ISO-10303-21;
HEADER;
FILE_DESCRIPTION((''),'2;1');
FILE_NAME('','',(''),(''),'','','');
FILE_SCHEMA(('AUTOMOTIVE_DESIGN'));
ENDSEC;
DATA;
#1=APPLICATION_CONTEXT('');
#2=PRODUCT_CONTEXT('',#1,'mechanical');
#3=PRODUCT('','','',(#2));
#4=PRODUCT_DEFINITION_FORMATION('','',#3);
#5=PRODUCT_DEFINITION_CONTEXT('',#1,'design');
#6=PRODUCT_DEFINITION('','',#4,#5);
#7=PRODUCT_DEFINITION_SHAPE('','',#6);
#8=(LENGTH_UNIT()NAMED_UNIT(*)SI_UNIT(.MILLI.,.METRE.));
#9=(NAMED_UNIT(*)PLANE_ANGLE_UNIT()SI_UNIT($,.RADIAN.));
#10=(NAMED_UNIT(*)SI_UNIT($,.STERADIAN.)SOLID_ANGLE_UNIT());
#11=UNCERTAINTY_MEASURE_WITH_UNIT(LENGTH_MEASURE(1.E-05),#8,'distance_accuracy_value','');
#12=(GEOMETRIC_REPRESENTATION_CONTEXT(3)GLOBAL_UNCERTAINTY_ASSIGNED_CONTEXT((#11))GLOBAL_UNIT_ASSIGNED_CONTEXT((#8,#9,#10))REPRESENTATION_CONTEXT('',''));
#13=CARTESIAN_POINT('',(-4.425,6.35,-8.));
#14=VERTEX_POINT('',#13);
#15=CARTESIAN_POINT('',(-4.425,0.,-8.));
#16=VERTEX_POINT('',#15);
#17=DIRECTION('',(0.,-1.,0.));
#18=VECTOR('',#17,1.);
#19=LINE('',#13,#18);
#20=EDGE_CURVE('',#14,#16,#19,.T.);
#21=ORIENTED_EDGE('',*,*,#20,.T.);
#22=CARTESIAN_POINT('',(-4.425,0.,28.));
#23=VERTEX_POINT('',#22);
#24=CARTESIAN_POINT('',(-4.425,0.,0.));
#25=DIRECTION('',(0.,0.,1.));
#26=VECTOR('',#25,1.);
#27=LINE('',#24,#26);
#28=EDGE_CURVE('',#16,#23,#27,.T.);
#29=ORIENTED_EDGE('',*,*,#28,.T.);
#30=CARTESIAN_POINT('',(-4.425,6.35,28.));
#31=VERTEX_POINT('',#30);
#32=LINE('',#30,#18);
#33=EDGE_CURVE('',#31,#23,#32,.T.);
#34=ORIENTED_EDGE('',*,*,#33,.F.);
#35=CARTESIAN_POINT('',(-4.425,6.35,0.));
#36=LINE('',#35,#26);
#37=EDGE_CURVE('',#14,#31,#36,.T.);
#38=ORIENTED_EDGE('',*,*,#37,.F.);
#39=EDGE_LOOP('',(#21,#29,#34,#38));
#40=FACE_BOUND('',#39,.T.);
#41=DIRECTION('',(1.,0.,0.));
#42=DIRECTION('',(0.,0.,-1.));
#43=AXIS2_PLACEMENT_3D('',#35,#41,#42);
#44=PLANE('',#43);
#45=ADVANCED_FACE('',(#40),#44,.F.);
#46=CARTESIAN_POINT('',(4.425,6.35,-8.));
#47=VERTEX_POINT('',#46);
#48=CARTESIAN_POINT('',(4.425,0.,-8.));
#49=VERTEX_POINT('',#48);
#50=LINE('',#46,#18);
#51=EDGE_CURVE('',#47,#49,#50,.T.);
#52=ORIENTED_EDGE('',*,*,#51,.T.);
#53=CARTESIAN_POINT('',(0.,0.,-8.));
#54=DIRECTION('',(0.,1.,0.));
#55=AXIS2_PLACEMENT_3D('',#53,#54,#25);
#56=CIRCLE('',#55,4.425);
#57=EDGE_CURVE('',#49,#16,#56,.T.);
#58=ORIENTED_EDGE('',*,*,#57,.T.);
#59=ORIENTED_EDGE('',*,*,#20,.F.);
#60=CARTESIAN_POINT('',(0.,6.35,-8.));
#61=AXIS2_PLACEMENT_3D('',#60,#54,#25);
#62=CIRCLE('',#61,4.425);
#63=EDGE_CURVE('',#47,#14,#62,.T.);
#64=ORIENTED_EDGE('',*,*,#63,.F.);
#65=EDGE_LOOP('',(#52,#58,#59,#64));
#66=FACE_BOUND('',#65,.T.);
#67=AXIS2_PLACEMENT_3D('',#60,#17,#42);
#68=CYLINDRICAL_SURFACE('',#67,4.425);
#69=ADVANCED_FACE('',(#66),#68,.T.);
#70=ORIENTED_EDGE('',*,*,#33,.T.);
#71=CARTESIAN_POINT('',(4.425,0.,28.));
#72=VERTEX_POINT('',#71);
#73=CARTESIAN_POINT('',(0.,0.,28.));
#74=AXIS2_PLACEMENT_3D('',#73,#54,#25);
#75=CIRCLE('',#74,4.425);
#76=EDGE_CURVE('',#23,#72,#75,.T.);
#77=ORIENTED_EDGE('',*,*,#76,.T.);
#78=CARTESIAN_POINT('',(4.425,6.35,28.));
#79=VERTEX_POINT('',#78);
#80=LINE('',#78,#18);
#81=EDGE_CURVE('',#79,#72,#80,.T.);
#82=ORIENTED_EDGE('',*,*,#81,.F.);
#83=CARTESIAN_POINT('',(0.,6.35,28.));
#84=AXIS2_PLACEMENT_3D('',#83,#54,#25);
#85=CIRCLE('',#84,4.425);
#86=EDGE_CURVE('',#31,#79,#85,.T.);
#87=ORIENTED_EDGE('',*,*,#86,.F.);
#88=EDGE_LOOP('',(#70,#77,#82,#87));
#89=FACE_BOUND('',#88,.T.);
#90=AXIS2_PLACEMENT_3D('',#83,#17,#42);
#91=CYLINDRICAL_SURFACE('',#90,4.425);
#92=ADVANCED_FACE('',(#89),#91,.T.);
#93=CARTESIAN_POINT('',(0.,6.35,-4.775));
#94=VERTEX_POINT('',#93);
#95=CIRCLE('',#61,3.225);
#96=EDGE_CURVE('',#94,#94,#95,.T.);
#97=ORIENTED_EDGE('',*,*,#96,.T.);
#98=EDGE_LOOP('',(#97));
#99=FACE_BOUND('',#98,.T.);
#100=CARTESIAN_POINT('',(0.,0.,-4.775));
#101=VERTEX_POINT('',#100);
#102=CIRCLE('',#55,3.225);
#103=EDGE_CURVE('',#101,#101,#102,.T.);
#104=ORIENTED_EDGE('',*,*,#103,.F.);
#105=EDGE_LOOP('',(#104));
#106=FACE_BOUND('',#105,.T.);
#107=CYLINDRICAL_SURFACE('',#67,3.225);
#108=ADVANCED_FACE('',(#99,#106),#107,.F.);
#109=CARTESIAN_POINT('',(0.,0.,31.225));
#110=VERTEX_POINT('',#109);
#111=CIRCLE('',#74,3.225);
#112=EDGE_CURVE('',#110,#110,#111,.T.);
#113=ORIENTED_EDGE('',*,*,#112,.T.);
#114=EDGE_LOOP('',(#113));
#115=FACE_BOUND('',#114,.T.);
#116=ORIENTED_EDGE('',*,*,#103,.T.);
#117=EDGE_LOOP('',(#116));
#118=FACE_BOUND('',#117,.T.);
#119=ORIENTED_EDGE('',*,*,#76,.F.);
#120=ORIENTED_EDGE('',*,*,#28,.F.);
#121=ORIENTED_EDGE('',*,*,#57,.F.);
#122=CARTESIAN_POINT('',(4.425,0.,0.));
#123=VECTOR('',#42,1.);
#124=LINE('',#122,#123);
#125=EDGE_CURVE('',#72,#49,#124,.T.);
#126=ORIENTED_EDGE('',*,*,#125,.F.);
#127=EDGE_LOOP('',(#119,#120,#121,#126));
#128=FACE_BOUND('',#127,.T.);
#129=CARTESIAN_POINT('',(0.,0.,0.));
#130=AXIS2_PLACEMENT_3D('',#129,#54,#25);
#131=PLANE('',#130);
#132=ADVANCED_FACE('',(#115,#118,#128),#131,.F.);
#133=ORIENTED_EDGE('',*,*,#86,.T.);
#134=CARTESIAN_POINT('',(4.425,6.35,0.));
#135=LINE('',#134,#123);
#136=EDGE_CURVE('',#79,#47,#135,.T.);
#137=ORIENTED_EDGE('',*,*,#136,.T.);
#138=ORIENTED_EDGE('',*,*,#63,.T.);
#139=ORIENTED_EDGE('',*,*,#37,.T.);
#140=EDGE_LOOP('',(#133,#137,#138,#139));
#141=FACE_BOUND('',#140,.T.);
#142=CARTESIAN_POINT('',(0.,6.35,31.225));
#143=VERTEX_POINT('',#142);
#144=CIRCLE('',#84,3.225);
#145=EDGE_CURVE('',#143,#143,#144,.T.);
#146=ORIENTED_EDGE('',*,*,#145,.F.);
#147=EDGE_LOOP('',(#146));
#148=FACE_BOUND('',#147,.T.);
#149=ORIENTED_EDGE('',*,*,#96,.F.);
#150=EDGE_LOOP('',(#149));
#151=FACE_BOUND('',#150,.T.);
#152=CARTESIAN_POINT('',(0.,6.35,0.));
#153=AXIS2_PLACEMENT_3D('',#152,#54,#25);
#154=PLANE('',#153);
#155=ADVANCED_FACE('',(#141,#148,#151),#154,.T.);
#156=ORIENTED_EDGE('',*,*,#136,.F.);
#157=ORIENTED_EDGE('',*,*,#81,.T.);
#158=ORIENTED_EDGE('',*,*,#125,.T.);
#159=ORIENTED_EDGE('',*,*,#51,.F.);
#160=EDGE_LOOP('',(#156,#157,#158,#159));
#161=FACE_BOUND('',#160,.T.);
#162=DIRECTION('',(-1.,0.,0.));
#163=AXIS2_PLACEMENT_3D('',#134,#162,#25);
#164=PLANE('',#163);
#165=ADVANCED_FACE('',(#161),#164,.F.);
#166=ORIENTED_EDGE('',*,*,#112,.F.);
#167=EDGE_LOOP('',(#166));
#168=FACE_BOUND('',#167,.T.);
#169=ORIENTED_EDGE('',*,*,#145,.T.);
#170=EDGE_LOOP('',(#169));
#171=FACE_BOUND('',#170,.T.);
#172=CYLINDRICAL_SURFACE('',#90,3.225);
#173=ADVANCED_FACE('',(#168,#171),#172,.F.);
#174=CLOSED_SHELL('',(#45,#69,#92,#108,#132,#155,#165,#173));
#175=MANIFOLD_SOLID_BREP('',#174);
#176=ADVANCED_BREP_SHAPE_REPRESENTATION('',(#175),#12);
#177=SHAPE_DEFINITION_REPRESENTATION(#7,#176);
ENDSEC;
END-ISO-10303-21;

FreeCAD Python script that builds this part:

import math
import FreeCAD as App
import Part
import Sketcher

V = App.Vector
Q = App.Units.Quantity

doc = App.newDocument("Part")
body = doc.addObject("PartDesign::Body", "Body")

sketch1 = body.newObject("Sketcher::SketchObject", "Sketch")
sketch1.AttachmentSupport = (doc.getObject("XZ_Plane"), [""])
sketch1.MapMode = "FlatFace"
sketch1.addGeometry(Part.LineSegment(V(4.4, 28, 0), V(4.4, -8, 0)), False)
sketch1.addGeometry(Part.ArcOfCircle(Part.Circle(V(0, -8, 0), V(0, 0, 1), 4.4), math.radians(180), math.radians(360)), False)
sketch1.addGeometry(Part.LineSegment(V(-4.4, -8, 0), V(-4.4, 28, 0)), False)
sketch1.addGeometry(Part.ArcOfCircle(Part.Circle(V(0, 28, 0), V(0, 0, 1), 4.4), math.radians(0), math.radians(180)), False)
sketch1.addGeometry(Part.Circle(V(0, 28, 0), V(0, 0, 1), 3.2), False)
sketch1.addGeometry(Part.Circle(V(0, -8, 0), V(0, 0, 1), 3.2), False)
sketch1.addConstraint(Sketcher.Constraint("Tangent", 0, 2, 1, 2))
sketch1.addConstraint(Sketcher.Constraint("Tangent", 1, 1, 2, 1))
sketch1.addConstraint(Sketcher.Constraint("Tangent", 2, 2, 3, 2))
sketch1.addConstraint(Sketcher.Constraint("Tangent", 3, 1, 0, 1))
sketch1.addConstraint(Sketcher.Constraint("Vertical", 0))
sketch1.addConstraint(Sketcher.Constraint("Vertical", 2))
sketch1.addConstraint(Sketcher.Constraint("Coincident", 4, 3, 3, 3))
sketch1.addConstraint(Sketcher.Constraint("Coincident", 5, 3, 1, 3))
sketch1.addConstraint(Sketcher.Constraint("Equal", 4, 5))
sketch1.addConstraint(Sketcher.Constraint("PointOnObject", 1, 3, -2))
sketch1.addConstraint(Sketcher.Constraint("Diameter", 4, Q("6.45 mm")))
sketch1.addConstraint(Sketcher.Constraint("DistanceY", 0, 2, 0, 1, Q("36 mm")))
sketch1.addConstraint(Sketcher.Constraint("DistanceY", 1, 3, -1, 1, Q("8 mm")))
sketch1.addConstraint(Sketcher.Constraint("Radius", 1, Q("4.425 mm")))
pad1 = body.newObject("PartDesign::Pad", "Pad")
pad1.Profile = sketch1
pad1.Length = 6.35
pad1.Reversed = True

doc.recompute()
